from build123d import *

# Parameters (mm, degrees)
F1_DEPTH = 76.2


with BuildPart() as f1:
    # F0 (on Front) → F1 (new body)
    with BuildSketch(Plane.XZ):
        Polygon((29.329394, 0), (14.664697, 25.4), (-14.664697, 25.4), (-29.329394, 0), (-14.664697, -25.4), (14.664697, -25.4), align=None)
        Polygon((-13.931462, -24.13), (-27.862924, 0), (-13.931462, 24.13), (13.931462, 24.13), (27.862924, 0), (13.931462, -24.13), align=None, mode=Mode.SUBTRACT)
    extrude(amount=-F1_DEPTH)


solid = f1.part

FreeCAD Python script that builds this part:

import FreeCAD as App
import Part
import Sketcher
Q = App.Units.Quantity

doc = App.newDocument("Part")
params = doc.addObject("Spreadsheet::Sheet", "Params")
for row, (alias, value) in enumerate([
    ("pad1_length", "3 in"),
], start=1):
    params.set(f"A{row}", alias)
    params.set(f"B{row}", "=" + value)
    params.setAlias(f"B{row}", alias)

body = doc.addObject("PartDesign::Body", "Body")

# Sketch on XZ plane
sketch1 = doc.addObject("Sketcher::SketchObject", "Sketch")
body.addObject(sketch1)
sketch1.AttachmentSupport = (doc.XZ_Plane, [""])
sketch1.MapMode = "FlatFace"
sketch1.addGeometry(Part.LineSegment(App.Vector(29, 0, 0), App.Vector(15, 25, 0)), False)
sketch1.addGeometry(Part.LineSegment(App.Vector(15, 25, 0), App.Vector(-15, 25, 0)), False)
sketch1.addGeometry(Part.LineSegment(App.Vector(-15, 25, 0), App.Vector(-29, 0, 0)), False)
sketch1.addGeometry(Part.LineSegment(App.Vector(-29, 0, 0), App.Vector(-15, -25, 0)), False)
sketch1.addGeometry(Part.LineSegment(App.Vector(-15, -25, 0), App.Vector(15, -25, 0)), False)
sketch1.addGeometry(Part.LineSegment(App.Vector(15, -25, 0), App.Vector(29, 0, 0)), False)
sketch1.addGeometry(Part.LineSegment(App.Vector(14, -24, 0), App.Vector(-14, -24, 0)), False)
sketch1.addGeometry(Part.LineSegment(App.Vector(-14, -24, 0), App.Vector(-28, 0, 0)), False)
sketch1.addGeometry(Part.LineSegment(App.Vector(-28, 0, 0), App.Vector(-14, 24, 0)), False)
sketch1.addGeometry(Part.LineSegment(App.Vector(-14, 24, 0), App.Vector(14, 24, 0)), False)
sketch1.addGeometry(Part.LineSegment(App.Vector(14, 24, 0), App.Vector(28, 0, 0)), False)
sketch1.addGeometry(Part.LineSegment(App.Vector(28, 0, 0), App.Vector(14, -24, 0)), False)
sketch1.addConstraint(Sketcher.Constraint("Coincident", 0, 2, 1, 1))
sketch1.addConstraint(Sketcher.Constraint("Coincident", 1, 2, 2, 1))
sketch1.addConstraint(Sketcher.Constraint("Coincident", 2, 2, 3, 1))
sketch1.addConstraint(Sketcher.Constraint("Coincident", 3, 2, 4, 1))
sketch1.addConstraint(Sketcher.Constraint("Coincident", 4, 2, 5, 1))
sketch1.addConstraint(Sketcher.Constraint("Coincident", 5, 2, 0, 1))
sketch1.addConstraint(Sketcher.Constraint("Coincident", 6, 2, 7, 1))
sketch1.addConstraint(Sketcher.Constraint("Coincident", 7, 2, 8, 1))
sketch1.addConstraint(Sketcher.Constraint("Coincident", 8, 2, 9, 1))
sketch1.addConstraint(Sketcher.Constraint("Coincident", 9, 2, 10, 1))
sketch1.addConstraint(Sketcher.Constraint("Coincident", 10, 2, 11, 1))
sketch1.addConstraint(Sketcher.Constraint("Coincident", 11, 2, 6, 1))
sketch1.addConstraint(Sketcher.Constraint("Horizontal", 1))
sketch1.addConstraint(Sketcher.Constraint("Horizontal", 4))
sketch1.addConstraint(Sketcher.Constraint("Horizontal", 6))
sketch1.addConstraint(Sketcher.Constraint("Horizontal", 9))
sketch1.addConstraint(Sketcher.Constraint("Symmetric", 0, 2, 3, 2, -1, 1))
sketch1.addConstraint(Sketcher.Constraint("Symmetric", 2, 2, 5, 2, -1, 1))
sketch1.addConstraint(Sketcher.Constraint("Symmetric", 6, 2, 9, 2, -1, 1))
sketch1.addConstraint(Sketcher.Constraint("Symmetric", 7, 2, 10, 2, -1, 1))
sketch1.addConstraint(Sketcher.Constraint("PointOnObject", 2, 2, -1))
sketch1.addConstraint(Sketcher.Constraint("PointOnObject", 7, 2, -1))
sketch1.addConstraint(Sketcher.Constraint("Parallel", 2, 5))
sketch1.addConstraint(Sketcher.Constraint("Parallel", 3, 7))
sketch1.addConstraint(Sketcher.Constraint("Parallel", 5, 8))
sketch1.addConstraint(Sketcher.Constraint("Parallel", 8, 11))
sketch1.addConstraint(Sketcher.Constraint("Vertical", 1, 2, 3, 2))
sketch1.addConstraint(Sketcher.Constraint("DistanceY", -1, 1, 0, 2, Q("1 in")))
sketch1.addConstraint(Sketcher.Constraint("Angle", 0, Q("120 deg")))
sketch1.addConstraint(Sketcher.Constraint("DistanceY", 6, 2, 8, 2, Q("1.9 in")))
sketch1.addConstraint(Sketcher.Constraint("DistanceX", 1, 2, 1, 1, Q("29.329394 mm")))
sketch1.addConstraint(Sketcher.Constraint("DistanceX", 6, 2, 6, 1, Q("27.862924 mm")))
pad1 = doc.addObject("PartDesign::Pad", "Pad")
body.addObject(pad1)
pad1.Profile = sketch1
pad1.setExpression("Length", "Params.pad1_length")
pad1.Reversed = True

doc.recompute()
